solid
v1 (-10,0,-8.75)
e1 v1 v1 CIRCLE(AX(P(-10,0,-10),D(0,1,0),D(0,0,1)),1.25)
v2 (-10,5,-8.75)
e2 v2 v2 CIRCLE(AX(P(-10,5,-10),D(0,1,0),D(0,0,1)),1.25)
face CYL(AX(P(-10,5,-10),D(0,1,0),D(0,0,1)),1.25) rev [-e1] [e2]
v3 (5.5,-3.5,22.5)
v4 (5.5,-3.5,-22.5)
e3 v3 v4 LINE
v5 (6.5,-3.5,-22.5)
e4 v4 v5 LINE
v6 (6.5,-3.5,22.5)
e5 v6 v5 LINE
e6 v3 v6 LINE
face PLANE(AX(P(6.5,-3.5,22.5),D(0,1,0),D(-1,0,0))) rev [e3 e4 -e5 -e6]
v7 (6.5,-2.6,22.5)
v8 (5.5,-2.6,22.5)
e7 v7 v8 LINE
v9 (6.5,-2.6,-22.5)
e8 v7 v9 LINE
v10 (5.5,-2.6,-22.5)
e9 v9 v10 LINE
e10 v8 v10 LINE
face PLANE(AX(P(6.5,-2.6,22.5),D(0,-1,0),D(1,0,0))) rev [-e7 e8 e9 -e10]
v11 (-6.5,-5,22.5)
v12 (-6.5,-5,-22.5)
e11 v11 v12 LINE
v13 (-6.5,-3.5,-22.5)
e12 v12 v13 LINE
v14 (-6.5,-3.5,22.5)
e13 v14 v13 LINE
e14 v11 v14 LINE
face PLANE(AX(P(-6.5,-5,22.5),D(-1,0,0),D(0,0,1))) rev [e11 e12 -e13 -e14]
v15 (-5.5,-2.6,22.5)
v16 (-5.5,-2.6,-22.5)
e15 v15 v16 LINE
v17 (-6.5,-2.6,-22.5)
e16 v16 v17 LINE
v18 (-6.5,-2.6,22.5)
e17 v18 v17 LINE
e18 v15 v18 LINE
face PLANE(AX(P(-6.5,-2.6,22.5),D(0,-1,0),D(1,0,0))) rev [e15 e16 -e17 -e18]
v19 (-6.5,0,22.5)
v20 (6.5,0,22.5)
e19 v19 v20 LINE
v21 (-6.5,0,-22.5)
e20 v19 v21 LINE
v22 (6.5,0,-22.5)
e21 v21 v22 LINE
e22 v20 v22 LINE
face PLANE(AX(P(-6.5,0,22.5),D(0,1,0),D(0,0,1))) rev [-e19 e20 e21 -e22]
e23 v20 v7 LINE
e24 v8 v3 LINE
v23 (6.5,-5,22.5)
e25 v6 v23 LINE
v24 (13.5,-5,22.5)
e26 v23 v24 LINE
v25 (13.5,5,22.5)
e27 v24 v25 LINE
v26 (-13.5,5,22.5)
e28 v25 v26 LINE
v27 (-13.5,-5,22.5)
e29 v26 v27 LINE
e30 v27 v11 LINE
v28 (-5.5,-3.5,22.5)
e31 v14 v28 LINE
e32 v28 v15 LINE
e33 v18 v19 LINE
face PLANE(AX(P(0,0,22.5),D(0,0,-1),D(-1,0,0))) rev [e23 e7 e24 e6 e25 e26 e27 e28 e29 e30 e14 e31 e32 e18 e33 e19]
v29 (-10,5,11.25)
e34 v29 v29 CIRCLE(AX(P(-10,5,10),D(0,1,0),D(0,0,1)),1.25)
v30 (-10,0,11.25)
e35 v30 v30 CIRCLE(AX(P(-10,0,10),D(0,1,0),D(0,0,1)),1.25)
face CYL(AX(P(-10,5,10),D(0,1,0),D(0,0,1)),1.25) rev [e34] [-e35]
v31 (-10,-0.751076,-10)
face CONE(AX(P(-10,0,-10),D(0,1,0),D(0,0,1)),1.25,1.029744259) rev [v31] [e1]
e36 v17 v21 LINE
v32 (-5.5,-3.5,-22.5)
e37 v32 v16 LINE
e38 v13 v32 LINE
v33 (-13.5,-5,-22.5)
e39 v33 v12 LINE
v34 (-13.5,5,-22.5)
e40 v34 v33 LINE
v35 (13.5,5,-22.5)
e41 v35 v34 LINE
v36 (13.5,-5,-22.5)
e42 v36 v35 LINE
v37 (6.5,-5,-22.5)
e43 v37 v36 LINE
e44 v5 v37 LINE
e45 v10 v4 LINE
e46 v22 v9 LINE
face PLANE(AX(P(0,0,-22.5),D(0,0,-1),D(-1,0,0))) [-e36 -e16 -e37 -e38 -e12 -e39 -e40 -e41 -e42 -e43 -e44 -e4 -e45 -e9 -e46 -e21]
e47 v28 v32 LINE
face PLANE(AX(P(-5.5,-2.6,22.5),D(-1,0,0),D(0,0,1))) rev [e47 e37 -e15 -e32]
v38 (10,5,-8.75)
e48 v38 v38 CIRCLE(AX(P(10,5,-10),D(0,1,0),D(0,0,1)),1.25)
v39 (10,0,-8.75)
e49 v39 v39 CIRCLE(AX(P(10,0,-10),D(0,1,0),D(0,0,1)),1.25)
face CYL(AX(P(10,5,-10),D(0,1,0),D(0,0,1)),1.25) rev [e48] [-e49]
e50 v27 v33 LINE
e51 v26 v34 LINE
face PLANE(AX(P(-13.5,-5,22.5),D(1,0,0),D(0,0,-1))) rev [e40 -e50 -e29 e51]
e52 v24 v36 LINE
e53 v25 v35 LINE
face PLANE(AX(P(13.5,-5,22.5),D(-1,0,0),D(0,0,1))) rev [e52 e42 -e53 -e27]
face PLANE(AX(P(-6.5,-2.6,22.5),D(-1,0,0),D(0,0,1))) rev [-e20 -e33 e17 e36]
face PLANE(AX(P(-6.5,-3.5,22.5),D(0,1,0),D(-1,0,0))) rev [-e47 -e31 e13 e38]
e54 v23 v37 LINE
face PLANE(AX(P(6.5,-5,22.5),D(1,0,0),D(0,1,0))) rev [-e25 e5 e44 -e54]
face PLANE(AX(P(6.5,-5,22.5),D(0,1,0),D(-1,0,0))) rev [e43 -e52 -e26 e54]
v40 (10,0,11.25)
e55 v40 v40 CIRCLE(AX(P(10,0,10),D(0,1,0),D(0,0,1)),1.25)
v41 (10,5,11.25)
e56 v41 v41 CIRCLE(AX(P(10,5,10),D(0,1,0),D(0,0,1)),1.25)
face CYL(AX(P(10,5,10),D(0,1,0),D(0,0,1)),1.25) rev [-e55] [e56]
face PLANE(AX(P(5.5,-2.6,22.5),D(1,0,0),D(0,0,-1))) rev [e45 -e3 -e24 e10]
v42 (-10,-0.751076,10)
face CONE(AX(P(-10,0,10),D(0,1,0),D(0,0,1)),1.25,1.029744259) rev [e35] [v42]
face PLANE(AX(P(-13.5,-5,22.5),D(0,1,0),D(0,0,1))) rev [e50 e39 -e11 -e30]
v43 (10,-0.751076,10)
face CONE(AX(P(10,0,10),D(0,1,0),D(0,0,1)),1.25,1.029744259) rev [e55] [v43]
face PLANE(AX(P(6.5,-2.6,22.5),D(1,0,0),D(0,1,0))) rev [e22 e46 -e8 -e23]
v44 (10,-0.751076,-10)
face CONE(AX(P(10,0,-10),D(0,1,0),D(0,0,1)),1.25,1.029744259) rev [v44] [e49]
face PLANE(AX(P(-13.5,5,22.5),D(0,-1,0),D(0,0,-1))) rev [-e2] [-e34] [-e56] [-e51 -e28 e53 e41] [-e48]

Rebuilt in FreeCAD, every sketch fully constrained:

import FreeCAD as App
import Part
import Sketcher
from FreeCAD import Vector


def add_polygon(sketch, points):
    """Adds a closed chain of lines whose ends are joined by coincident constraints."""
    first, n = sketch.GeometryCount, len(points)
    for a, b in zip(points, points[1:] + points[:1]):
        sketch.addGeometry(Part.LineSegment(App.Vector(*a, 0), App.Vector(*b, 0)), False)
    for i in range(n):
        sketch.addConstraint(Sketcher.Constraint("Coincident", first + i, 2, first + (i + 1) % n, 1))

doc = App.newDocument("Part")
params = doc.addObject("Spreadsheet::Sheet", "Params")
for row, (alias, value) in enumerate([
    ("sketch1_width", "7 mm"),
    ("sketch1_width2", "27 mm"),
    ("sketch1_width3", "1 mm"),
    ("sketch1_height", "10 mm"),
    ("sketch1_height2", "1.5 mm"),
    ("pad1_length", "45 mm"),
    ("sketch2_diameter", "2.5 mm"),
    ("hole_diameter", "2.5 mm"),
    ("hole_depth", "5 mm"),
], start=1):
    params.set(f"A{row}", alias)
    params.set(f"B{row}", "=" + value)
    params.setAlias(f"B{row}", alias)

body = doc.addObject("PartDesign::Body", "Body")

sketch1 = body.newObject("Sketcher::SketchObject", "Sketch")
sketch1.AttachmentSupport = (doc.getObject("XY_Plane"), [""])
sketch1.MapMode = "FlatFace"
add_polygon(sketch1, [(6.5, -5), (13.5, -5), (13.5, 5), (-13.5, 5), (-13.5, -5), (-6.5, -5), (-6.5, -3.5), (-5.5, -3.5), (-5.5, -2.6), (-6.5, -2.6), (-6.5, 0), (6.5, 0), (6.5, -2.6), (5.5, -2.6), (5.5, -3.5), (6.5, -3.5)])
sketch1.addConstraint([
    Sketcher.Constraint("Horizontal", 0),
    Sketcher.Constraint("Vertical", 1),
    Sketcher.Constraint("Horizontal", 2),
    Sketcher.Constraint("Vertical", 3),
    Sketcher.Constraint("Horizontal", 4),
    Sketcher.Constraint("Vertical", 5),
    Sketcher.Constraint("Horizontal", 6),
    Sketcher.Constraint("Vertical", 7),
    Sketcher.Constraint("Horizontal", 8),
    Sketcher.Constraint("Vertical", 9),
    Sketcher.Constraint("Horizontal", 10),
    Sketcher.Constraint("Vertical", 11),
    Sketcher.Constraint("Horizontal", 12),
    Sketcher.Constraint("Vertical", 13),
    Sketcher.Constraint("Horizontal", 14),
    Sketcher.Constraint("Vertical", 15),
    Sketcher.Constraint("Symmetric", 0, 2, 2, 2, -1, 1),
    Sketcher.Constraint("Symmetric", 9, 2, 10, 2, -1, 1),
    Sketcher.Constraint("Symmetric", 7, 2, 12, 2, -2),
    Sketcher.Constraint("Symmetric", 5, 2, 14, 2, -2),
    Sketcher.Constraint("Horizontal", 0, 2, 3, 2),
    Sketcher.Constraint("Vertical", 5, 2, 8, 2),
    Sketcher.Constraint("DistanceX", 0, 1, 0, 2, 7.0),
    Sketcher.Constraint("DistanceX", 2, 2, 2, 1, 27.0),
    Sketcher.Constraint("DistanceX", 6, 1, 6, 2, 1.0),
    Sketcher.Constraint("DistanceY", 1, 1, 1, 2, 10.0),
    Sketcher.Constraint("DistanceY", 5, 1, 5, 2, 1.5),
    Sketcher.Constraint("DistanceY", 7, 1, 7, 2, 0.9),
])
sketch1.setExpression("Constraints[38]", "Params.sketch1_width")
sketch1.setExpression("Constraints[39]", "Params.sketch1_width2")
sketch1.setExpression("Constraints[40]", "Params.sketch1_width3")
sketch1.setExpression("Constraints[41]", "Params.sketch1_height")
sketch1.setExpression("Constraints[42]", "Params.sketch1_height2")
pad1 = body.newObject("PartDesign::Pad", "Pad")
pad1.Profile = sketch1
pad1.setExpression("Length", "Params.pad1_length")
pad1.Midplane = True

sketch2 = body.newObject("Sketcher::SketchObject", "Sketch001")
sketch2.AttachmentSupport = (doc.getObject("XZ_Plane"), [""])
sketch2.MapMode = "FlatFace"
sketch2.AttachmentOffset = App.Placement(Vector(0, 0, -5), App.Rotation())
sketch2.addGeometry([
    Part.Circle(Vector(-10, -10, 0), Vector(0, 0, 1), 1.2),
    Part.Circle(Vector(-10, 10, 0), Vector(0, 0, 1), 1.2),
    Part.Circle(Vector(10, 10, 0), Vector(0, 0, 1), 1.2),
    Part.Circle(Vector(10, -10, 0), Vector(0, 0, 1), 1.2),
], False)
sketch2.addConstraint([
    Sketcher.Constraint("Equal", 0, 1),
    Sketcher.Constraint("Equal", 1, 2),
    Sketcher.Constraint("Equal", 2, 3),
    Sketcher.Constraint("Symmetric", 0, 3, 2, 3, -1, 1),
    Sketcher.Constraint("Symmetric", 1, 3, 3, 3, -1, 1),
    Sketcher.Constraint("Symmetric", 1, 3, 2, 3, -2),
    Sketcher.Constraint("Diameter", 0, 2.5),
    Sketcher.Constraint("DistanceX", 0, 3, -1, 1, 10.0),
    Sketcher.Constraint("DistanceY", 0, 3, -1, 1, 10.0),
])
sketch2.setExpression("Constraints[6]", "Params.sketch2_diameter")
doc.recompute()
hole = body.newObject("PartDesign::Hole", "Hole")
hole.Profile = sketch2
hole.ThreadType = "None"
hole.setExpression("Diameter", "Params.hole_diameter")
hole.DepthType = "Dimension"
hole.setExpression("Depth", "Params.hole_depth")
hole.DrillPoint = "Angled"
hole.DrillPointAngle = 118
hole.Reversed = True

doc.recompute()
